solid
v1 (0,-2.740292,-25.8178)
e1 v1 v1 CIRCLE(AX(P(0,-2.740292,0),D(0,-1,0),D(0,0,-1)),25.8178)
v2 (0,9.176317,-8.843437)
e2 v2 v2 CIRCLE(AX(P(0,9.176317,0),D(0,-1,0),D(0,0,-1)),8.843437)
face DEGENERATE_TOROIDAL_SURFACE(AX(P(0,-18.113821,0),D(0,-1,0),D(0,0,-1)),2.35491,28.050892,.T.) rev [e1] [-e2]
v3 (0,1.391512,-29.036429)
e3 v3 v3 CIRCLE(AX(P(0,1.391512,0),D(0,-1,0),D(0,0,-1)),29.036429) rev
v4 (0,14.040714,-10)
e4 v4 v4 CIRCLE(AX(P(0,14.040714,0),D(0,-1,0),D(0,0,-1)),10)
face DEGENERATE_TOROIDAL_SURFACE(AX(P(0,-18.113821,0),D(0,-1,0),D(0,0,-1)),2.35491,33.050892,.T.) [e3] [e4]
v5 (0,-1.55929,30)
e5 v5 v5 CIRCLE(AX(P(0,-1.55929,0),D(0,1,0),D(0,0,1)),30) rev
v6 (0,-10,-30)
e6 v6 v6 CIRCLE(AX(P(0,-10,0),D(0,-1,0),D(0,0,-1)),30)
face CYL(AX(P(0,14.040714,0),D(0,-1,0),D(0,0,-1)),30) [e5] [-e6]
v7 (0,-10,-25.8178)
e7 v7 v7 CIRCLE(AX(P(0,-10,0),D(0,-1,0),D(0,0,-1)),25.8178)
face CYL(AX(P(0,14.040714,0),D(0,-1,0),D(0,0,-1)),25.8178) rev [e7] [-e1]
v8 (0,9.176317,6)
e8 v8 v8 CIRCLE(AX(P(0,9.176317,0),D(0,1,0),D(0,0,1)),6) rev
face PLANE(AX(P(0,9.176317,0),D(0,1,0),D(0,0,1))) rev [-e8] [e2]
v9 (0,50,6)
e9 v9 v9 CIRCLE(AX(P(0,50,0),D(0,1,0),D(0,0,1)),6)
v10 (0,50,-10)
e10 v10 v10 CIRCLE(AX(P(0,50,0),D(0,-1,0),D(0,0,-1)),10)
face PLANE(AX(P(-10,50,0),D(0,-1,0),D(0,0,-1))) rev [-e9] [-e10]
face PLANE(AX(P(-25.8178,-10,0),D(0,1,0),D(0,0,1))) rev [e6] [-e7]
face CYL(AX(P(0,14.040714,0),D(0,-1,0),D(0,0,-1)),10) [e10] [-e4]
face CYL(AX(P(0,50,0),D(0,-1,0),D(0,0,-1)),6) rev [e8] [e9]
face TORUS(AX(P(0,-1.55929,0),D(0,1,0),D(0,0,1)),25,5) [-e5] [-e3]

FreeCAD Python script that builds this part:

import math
import FreeCAD as App
import Part
import Sketcher
from FreeCAD import Vector
Q = App.Units.Quantity


def edges_at(feature, points):
    """Names of the edges that pass closest to the given points."""
    edges = feature.Shape.Edges
    near = lambda p: min(range(len(edges)), key=lambda i: edges[i].distToShape(Part.Vertex(*p))[0])
    return sorted({f"Edge{near(p) + 1}" for p in points})

doc = App.newDocument("Part")
body = doc.addObject("PartDesign::Body", "Body")

sketch1 = doc.addObject("Sketcher::SketchObject", "Sketch")
body.addObject(sketch1)
sketch1.AttachmentSupport = (doc.XY_Plane, [""])
sketch1.MapMode = "FlatFace"
sketch1.addGeometry([
    Part.LineSegment(Vector(0, 50, 0), Vector(-10, 50, 0)),
    Part.LineSegment(Vector(-10, 50, 0), Vector(-10, 14.040714, 0)),
    Part.ArcOfCircle(Part.Circle(Vector(-2.35491, -18.113821, 0), Vector(0, 0, 1), 33.050892), math.radians(103.374366), math.radians(146.766084)),
    Part.LineSegment(Vector(-30, 0, 0), Vector(-30, -10, 0)),
    Part.LineSegment(Vector(-30, -10, 0), Vector(-25.8178, -10, 0)),
    Part.LineSegment(Vector(-25.8178, -10, 0), Vector(-25.8178, -2.740292, 0)),
    Part.ArcOfCircle(Part.Circle(Vector(-2.35491, -18.113821, 0), Vector(0, 0, 1), 28.050892), math.radians(103.374366), math.radians(146.766084)),
    Part.LineSegment(Vector(-8.843437, 9.176317, 0), Vector(0, 9.176317, 0)),
    Part.LineSegment(Vector(0, 9.176317, 0), Vector(0, 50, 0)),
], False)
sketch1.addConstraint([
    Sketcher.Constraint("Coincident", 0, 2, 1, 1),
    Sketcher.Constraint("Coincident", 1, 2, 2, 1),
    Sketcher.Constraint("Coincident", 2, 2, 3, 1),
    Sketcher.Constraint("Coincident", 3, 2, 4, 1),
    Sketcher.Constraint("Coincident", 4, 2, 5, 1),
    Sketcher.Constraint("Coincident", 5, 2, 6, 2),
    Sketcher.Constraint("Coincident", 6, 1, 7, 1),
    Sketcher.Constraint("Coincident", 7, 2, 8, 1),
    Sketcher.Constraint("Coincident", 8, 2, 0, 1),
    Sketcher.Constraint("Horizontal", 0),
    Sketcher.Constraint("Vertical", 1),
    Sketcher.Constraint("Vertical", 3),
    Sketcher.Constraint("Horizontal", 4),
    Sketcher.Constraint("Vertical", 5),
    Sketcher.Constraint("Horizontal", 7),
    Sketcher.Constraint("Vertical", 8),
    Sketcher.Constraint("Coincident", 6, 3, 2, 3),
    Sketcher.Constraint("PointOnObject", 2, 2, -1),
    Sketcher.Constraint("PointOnObject", 7, 2, -2),
    Sketcher.Constraint("Equal", 0, 3),
    Sketcher.Constraint("DistanceX", 0, 2, 0, 1, Q("10 mm")),
    Sketcher.Constraint("DistanceY", -1, 1, 0, 2, Q("50 mm")),
    Sketcher.Constraint("DistanceX", 2, 2, -1, 1, Q("30 mm")),
    Sketcher.Constraint("DistanceX", 4, 1, 4, 2, Q("4.1822 mm")),
    Sketcher.Constraint("Radius", 2, Q("33.050892 mm")),
    Sketcher.Constraint("Radius", 6, Q("28.050892 mm")),
    Sketcher.Constraint("DistanceX", 7, 1, 7, 2, Q("8.843437 mm")),
    Sketcher.Constraint("DistanceY", 1, 2, 1, 1, Q("35.959286 mm")),
])
revolution = doc.addObject("PartDesign::Revolution", "Revolution")
body.addObject(revolution)
revolution.Profile = sketch1
revolution.ReferenceAxis = (sketch1, ["V_Axis"])
revolution.Angle = 360

sketch2 = doc.addObject("Sketcher::SketchObject", "Sketch001")
body.addObject(sketch2)
sketch2.AttachmentSupport = (doc.XZ_Plane, [""])
sketch2.MapMode = "FlatFace"
sketch2.addGeometry(Part.Circle(Vector(0, 0, 0), Vector(0, 0, 1), 6), False)
sketch2.addConstraint([
    Sketcher.Constraint("Coincident", 0, 3, -1, 1),
    Sketcher.Constraint("Diameter", 0, Q("12 mm")),
])
pocket1 = doc.addObject("PartDesign::Pocket", "Pocket")
body.addObject(pocket1)
pocket1.Profile = sketch2
pocket1.Type = "ThroughAll"
doc.recompute()

fillet = doc.addObject("PartDesign::Fillet", "Fillet")
body.addObject(fillet)
fillet.Base = (pocket1, edges_at(pocket1, [(0, 0, 30)]))
fillet.Radius = 5

doc.recompute()
